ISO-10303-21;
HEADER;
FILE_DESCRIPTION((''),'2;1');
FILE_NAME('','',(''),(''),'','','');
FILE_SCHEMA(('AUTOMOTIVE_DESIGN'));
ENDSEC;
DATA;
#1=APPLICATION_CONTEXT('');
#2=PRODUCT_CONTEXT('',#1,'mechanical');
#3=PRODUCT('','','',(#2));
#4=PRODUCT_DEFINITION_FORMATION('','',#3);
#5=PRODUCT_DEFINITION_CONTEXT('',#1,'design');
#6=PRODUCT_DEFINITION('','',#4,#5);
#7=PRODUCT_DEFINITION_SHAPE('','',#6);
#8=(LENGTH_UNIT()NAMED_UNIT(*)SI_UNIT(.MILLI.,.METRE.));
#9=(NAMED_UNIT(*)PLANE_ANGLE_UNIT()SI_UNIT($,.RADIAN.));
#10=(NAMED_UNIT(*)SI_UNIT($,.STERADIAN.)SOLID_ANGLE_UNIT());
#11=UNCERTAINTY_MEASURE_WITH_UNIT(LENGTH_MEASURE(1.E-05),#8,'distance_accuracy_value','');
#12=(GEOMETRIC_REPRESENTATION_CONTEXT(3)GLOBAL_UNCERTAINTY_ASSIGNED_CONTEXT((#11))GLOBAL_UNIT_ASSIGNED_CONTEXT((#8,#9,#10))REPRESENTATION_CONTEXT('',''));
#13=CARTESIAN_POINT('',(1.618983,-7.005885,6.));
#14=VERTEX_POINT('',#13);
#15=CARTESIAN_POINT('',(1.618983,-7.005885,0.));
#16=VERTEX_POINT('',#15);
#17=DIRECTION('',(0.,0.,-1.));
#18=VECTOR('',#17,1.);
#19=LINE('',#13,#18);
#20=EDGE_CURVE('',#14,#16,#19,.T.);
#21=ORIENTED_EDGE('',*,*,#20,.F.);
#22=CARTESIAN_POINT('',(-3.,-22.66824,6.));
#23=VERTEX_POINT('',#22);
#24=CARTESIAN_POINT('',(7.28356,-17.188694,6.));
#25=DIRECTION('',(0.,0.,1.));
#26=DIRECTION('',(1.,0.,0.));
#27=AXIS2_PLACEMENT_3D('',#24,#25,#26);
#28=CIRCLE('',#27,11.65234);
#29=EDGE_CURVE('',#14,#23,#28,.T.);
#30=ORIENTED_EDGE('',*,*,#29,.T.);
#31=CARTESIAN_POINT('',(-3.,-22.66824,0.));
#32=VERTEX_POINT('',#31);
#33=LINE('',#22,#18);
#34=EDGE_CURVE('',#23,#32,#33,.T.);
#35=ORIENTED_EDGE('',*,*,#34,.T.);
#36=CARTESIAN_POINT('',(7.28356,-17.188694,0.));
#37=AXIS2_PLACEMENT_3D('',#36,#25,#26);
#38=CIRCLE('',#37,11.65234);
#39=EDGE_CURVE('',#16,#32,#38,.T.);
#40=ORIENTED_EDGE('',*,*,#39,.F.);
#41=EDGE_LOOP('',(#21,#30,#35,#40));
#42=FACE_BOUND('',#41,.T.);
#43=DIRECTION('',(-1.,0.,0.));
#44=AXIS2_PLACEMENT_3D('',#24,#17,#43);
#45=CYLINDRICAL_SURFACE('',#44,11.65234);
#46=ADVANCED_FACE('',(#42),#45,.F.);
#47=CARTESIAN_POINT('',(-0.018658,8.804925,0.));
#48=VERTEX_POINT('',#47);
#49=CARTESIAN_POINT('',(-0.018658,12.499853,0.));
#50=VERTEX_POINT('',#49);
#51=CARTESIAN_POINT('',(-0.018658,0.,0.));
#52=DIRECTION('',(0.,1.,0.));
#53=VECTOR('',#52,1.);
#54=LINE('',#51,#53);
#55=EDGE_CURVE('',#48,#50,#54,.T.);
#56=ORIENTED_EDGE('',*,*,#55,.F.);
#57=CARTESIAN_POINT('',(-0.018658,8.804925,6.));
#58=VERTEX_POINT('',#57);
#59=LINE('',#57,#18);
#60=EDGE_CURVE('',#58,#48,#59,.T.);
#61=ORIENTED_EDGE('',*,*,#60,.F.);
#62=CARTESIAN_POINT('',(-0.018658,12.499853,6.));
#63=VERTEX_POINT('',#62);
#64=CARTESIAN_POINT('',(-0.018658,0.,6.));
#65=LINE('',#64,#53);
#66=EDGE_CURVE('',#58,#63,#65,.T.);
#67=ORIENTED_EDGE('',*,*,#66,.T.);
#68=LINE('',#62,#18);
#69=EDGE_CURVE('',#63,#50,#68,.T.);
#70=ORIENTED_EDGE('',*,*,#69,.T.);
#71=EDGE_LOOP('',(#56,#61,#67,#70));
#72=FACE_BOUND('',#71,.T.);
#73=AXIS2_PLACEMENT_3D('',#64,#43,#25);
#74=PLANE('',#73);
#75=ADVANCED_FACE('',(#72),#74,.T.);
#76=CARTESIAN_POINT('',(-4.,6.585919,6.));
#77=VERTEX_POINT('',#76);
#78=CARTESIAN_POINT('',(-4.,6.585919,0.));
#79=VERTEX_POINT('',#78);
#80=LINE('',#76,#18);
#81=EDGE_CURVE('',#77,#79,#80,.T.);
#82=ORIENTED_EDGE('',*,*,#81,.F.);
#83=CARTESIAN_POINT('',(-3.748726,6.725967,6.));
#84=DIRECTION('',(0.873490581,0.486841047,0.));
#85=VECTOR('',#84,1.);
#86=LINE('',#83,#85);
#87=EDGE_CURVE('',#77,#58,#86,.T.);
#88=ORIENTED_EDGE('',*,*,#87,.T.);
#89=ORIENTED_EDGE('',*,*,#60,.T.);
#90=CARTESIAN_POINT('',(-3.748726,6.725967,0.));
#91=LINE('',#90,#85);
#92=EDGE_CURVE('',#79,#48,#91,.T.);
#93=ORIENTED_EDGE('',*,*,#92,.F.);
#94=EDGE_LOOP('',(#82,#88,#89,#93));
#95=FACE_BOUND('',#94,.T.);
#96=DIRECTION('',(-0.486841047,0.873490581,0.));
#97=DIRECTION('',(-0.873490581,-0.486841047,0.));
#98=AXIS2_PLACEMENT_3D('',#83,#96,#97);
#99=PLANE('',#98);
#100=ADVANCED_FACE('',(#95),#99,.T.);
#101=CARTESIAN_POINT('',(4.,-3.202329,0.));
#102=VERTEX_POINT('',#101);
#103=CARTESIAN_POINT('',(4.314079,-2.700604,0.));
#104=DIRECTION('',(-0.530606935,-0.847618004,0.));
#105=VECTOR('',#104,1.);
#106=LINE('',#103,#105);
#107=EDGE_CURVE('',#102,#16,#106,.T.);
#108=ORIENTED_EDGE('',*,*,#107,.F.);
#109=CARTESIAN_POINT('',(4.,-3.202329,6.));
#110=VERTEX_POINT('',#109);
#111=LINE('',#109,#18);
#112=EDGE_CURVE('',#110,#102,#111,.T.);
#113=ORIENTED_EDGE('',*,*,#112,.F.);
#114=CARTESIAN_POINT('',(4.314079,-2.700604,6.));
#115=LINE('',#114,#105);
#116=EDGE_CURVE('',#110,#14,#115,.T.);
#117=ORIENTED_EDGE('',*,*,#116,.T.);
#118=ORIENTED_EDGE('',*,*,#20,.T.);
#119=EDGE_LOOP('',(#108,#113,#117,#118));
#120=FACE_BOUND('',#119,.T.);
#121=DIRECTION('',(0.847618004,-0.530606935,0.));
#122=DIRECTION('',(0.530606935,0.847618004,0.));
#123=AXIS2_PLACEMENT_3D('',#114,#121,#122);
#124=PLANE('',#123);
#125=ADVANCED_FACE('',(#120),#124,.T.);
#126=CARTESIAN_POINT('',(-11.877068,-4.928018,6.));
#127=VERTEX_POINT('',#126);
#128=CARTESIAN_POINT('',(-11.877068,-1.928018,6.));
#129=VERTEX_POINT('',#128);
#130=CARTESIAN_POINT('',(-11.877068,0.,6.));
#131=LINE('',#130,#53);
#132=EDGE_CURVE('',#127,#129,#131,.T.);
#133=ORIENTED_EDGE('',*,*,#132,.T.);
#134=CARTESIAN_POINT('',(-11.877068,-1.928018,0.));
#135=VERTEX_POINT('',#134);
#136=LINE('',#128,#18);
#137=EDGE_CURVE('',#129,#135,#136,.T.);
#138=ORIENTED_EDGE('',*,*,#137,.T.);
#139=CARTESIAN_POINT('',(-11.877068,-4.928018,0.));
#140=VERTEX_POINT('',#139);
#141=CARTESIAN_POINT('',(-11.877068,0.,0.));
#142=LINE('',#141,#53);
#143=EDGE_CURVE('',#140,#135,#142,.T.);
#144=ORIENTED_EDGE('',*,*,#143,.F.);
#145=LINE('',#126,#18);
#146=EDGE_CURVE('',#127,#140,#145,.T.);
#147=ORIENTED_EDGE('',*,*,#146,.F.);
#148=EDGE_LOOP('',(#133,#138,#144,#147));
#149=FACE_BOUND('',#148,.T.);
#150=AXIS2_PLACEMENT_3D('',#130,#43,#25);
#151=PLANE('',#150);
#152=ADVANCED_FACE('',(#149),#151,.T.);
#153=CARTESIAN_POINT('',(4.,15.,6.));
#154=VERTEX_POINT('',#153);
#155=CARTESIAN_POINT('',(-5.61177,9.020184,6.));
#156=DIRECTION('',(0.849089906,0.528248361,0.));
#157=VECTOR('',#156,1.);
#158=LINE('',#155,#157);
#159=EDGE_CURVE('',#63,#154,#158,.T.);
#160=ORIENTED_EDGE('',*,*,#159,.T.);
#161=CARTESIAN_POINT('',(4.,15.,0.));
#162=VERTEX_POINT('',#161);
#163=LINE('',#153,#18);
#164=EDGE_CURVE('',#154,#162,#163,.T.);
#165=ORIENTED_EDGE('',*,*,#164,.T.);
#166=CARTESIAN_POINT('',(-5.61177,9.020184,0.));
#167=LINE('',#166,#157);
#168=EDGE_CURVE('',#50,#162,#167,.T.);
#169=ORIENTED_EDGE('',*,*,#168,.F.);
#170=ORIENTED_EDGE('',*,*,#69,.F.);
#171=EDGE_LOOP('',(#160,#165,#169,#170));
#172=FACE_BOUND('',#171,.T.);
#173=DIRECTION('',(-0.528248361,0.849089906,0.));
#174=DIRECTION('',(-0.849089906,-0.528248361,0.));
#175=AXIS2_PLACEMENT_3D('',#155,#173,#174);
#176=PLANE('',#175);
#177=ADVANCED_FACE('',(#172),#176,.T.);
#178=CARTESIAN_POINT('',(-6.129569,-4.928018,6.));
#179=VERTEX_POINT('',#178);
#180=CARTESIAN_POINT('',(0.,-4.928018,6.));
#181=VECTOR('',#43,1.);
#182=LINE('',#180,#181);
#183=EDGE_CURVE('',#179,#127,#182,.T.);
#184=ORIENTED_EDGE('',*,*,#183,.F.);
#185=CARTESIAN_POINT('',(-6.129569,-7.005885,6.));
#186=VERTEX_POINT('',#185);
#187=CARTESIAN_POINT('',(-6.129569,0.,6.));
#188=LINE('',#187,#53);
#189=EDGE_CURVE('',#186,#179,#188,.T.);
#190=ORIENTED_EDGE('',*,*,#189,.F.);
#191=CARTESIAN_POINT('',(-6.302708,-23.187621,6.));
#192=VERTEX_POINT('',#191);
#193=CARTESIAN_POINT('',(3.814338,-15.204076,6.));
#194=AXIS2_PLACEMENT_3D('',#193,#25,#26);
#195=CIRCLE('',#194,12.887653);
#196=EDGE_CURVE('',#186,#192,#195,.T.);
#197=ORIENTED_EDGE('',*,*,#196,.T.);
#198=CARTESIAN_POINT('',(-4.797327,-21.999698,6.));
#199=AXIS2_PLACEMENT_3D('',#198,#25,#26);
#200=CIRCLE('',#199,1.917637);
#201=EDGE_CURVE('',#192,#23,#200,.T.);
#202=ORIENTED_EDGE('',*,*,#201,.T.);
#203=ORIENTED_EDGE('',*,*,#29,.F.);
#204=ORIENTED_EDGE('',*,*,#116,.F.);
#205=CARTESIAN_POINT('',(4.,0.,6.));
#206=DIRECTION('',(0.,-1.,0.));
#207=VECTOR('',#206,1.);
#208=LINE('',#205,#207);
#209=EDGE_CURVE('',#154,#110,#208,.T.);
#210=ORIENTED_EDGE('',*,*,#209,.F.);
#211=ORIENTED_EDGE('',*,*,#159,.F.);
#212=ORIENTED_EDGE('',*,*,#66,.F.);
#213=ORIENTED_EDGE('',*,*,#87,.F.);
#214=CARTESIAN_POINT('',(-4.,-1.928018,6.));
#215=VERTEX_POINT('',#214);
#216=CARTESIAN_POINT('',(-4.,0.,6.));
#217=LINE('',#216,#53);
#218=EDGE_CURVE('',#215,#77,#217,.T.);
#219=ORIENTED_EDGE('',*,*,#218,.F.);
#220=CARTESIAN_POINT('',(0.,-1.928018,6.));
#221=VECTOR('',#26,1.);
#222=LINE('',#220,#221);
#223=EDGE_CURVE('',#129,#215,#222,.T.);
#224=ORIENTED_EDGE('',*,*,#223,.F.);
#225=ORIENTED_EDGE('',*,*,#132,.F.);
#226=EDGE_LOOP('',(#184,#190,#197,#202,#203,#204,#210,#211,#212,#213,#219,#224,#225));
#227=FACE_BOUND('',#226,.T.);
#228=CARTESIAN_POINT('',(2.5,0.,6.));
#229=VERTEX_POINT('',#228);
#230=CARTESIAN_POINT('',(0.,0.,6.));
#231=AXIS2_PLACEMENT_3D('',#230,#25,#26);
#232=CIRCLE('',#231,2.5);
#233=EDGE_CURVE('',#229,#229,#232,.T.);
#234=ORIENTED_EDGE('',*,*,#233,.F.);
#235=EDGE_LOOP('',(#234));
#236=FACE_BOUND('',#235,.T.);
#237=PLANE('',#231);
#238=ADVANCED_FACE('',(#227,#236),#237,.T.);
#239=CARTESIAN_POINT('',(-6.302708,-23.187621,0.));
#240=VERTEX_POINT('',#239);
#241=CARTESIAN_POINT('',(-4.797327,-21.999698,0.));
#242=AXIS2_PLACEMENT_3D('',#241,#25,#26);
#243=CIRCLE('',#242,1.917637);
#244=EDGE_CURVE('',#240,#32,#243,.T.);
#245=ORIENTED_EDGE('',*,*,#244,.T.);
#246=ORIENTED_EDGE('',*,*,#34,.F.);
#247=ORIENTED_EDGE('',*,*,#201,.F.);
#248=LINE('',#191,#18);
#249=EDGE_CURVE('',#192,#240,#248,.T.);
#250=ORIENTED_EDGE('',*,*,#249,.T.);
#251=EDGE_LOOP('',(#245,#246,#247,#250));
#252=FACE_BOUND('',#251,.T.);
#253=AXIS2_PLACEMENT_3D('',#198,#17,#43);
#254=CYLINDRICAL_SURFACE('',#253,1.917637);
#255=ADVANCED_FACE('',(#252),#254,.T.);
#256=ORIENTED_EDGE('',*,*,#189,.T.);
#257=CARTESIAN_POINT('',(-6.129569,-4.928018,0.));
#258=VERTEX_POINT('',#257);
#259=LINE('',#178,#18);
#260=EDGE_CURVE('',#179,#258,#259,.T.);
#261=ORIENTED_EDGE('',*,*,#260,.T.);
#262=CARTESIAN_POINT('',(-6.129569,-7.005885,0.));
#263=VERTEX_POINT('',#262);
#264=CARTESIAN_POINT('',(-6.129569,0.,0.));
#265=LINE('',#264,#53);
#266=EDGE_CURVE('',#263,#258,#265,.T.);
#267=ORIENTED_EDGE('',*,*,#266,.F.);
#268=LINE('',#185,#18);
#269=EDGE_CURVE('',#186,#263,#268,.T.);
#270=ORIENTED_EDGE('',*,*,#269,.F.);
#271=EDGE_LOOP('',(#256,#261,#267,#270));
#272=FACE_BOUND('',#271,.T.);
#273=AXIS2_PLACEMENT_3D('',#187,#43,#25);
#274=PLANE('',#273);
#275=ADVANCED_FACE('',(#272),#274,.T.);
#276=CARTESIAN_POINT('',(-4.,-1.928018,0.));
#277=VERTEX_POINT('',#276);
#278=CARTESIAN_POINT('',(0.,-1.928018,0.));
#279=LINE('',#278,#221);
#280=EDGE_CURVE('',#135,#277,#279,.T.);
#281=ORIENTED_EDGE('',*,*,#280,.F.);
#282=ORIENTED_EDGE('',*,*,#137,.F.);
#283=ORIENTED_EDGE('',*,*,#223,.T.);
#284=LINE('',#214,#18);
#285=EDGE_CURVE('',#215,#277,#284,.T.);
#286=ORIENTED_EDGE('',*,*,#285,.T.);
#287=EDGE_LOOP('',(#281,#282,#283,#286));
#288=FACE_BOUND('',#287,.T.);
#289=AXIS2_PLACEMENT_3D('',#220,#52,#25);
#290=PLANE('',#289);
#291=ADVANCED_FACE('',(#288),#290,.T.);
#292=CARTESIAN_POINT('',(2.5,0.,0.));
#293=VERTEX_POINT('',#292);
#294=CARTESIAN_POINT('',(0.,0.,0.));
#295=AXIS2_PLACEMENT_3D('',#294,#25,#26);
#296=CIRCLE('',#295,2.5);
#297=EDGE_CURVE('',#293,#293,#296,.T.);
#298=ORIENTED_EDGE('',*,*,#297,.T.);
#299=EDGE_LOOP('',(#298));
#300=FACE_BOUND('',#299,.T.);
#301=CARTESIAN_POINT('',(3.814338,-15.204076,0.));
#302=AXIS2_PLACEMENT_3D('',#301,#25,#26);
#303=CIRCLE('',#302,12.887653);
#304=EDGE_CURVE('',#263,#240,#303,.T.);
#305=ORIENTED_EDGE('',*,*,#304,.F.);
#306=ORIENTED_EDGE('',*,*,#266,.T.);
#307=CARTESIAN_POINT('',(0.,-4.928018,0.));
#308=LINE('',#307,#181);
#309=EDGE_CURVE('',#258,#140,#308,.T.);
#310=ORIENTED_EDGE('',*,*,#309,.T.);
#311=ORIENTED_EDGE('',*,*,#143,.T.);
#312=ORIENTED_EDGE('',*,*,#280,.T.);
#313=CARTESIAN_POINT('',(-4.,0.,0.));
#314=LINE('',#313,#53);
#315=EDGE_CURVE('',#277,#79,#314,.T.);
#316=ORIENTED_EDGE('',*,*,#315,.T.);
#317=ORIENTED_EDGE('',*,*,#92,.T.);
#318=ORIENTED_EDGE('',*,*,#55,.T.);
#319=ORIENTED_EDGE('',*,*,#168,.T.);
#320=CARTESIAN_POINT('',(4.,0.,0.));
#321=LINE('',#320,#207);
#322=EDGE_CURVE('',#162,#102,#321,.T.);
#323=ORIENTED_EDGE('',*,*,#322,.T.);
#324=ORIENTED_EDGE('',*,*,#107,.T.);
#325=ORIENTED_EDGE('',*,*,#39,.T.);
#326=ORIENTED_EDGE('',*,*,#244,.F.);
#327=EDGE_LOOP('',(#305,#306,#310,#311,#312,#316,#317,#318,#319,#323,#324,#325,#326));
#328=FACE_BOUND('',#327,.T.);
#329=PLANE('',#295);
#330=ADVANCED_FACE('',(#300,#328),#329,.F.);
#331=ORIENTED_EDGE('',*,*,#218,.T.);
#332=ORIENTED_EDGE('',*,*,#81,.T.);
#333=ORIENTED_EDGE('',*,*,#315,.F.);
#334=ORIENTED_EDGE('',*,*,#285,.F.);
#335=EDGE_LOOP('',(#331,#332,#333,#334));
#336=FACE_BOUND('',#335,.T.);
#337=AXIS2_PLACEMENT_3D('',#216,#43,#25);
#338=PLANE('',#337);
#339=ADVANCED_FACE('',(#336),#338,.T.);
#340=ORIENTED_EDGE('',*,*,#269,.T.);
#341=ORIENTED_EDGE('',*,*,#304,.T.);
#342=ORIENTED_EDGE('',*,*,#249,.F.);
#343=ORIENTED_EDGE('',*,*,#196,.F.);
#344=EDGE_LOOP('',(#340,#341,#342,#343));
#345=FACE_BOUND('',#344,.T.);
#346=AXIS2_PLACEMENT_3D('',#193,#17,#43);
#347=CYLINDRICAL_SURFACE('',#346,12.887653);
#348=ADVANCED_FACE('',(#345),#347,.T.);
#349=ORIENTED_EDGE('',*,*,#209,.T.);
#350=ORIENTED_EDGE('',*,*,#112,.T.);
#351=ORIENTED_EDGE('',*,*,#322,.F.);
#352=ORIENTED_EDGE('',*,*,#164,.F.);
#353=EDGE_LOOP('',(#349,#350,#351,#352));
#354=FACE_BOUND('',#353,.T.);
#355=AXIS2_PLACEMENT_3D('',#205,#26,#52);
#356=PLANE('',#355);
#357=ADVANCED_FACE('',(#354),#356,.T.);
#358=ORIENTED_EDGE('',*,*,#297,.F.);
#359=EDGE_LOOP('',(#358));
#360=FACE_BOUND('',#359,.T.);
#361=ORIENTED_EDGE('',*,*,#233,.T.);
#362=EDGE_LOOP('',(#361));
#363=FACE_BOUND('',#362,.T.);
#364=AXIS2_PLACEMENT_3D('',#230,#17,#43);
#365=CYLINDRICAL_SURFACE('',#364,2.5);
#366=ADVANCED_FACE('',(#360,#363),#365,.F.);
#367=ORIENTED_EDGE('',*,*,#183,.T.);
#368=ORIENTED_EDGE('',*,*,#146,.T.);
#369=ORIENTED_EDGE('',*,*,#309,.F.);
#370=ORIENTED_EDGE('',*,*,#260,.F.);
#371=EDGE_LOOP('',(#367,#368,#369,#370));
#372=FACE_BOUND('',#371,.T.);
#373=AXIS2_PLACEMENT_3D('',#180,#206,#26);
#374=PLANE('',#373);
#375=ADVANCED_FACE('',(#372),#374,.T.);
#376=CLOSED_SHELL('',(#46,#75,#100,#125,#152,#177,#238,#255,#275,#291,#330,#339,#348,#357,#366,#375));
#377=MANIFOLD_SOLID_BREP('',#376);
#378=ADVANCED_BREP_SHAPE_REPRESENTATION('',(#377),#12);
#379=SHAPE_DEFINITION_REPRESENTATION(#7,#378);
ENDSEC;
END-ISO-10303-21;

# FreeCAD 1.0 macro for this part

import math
import FreeCAD as App
import Part
import Sketcher

V = App.Vector

doc = App.newDocument("Part")
body = doc.addObject("PartDesign::Body", "Body")

sketch1 = body.newObject("Sketcher::SketchObject", "Sketch")
sketch1.AttachmentSupport = (doc.getObject("XY_Plane"), [""])
sketch1.MapMode = "FlatFace"
sketch1.addGeometry(Part.LineSegment(V(4, -3.202329, 0), V(4, 15, 0)), False)
sketch1.addGeometry(Part.LineSegment(V(4, 15, 0), V(-0.018658, 12.499853, 0)), False)
sketch1.addGeometry(Part.LineSegment(V(-0.018658, 12.499853, 0), V(-0.018658, 8.804925, 0)), False)
sketch1.addGeometry(Part.LineSegment(V(-0.018658, 8.804925, 0), V(-4, 6.585919, 0)), False)
sketch1.addGeometry(Part.LineSegment(V(-4, 6.585919, 0), V(-4, -1.928018, 0)), False)
sketch1.addGeometry(Part.LineSegment(V(-4, -1.928018, 0), V(-11.877068, -1.928018, 0)), False)
sketch1.addGeometry(Part.LineSegment(V(-11.877068, -1.928018, 0), V(-11.877068, -4.928018, 0)), False)
sketch1.addGeometry(Part.LineSegment(V(-11.877068, -4.928018, 0), V(-6.129569, -4.928018, 0)), False)
sketch1.addGeometry(Part.LineSegment(V(-6.129569, -4.928018, 0), V(-6.129569, -7.005885, 0)), False)
sketch1.addGeometry(Part.ArcOfCircle(Part.Circle(V(3.814338, -15.204076, 0), V(0, 0, 1), 12.887653), math.radians(140.496341), math.radians(218.277616)), False)
sketch1.addGeometry(Part.ArcOfCircle(Part.Circle(V(-4.797327, -21.999698, 0), V(0, 0, 1), 1.917637), math.radians(-141.722384), math.radians(-20.403409)), False)
sketch1.addGeometry(Part.ArcOfCircle(Part.Circle(V(7.28356, -17.188694, 0), V(0, 0, 1), 11.65234), math.radians(119.086677), math.radians(208.050708)), False)
sketch1.addGeometry(Part.LineSegment(V(1.618983, -7.005885, 0), V(4, -3.202329, 0)), False)
sketch1.addGeometry(Part.Circle(V(0, 0, 0), V(0, 0, 1), 2.5), False)
sketch1.addConstraint(Sketcher.Constraint("Coincident", 0, 2, 1, 1))
sketch1.addConstraint(Sketcher.Constraint("Coincident", 1, 2, 2, 1))
sketch1.addConstraint(Sketcher.Constraint("Coincident", 2, 2, 3, 1))
sketch1.addConstraint(Sketcher.Constraint("Coincident", 3, 2, 4, 1))
sketch1.addConstraint(Sketcher.Constraint("Coincident", 4, 2, 5, 1))
sketch1.addConstraint(Sketcher.Constraint("Coincident", 5, 2, 6, 1))
sketch1.addConstraint(Sketcher.Constraint("Coincident", 6, 2, 7, 1))
sketch1.addConstraint(Sketcher.Constraint("Coincident", 7, 2, 8, 1))
sketch1.addConstraint(Sketcher.Constraint("Coincident", 8, 2, 9, 1))
sketch1.addConstraint(Sketcher.Constraint("Coincident", 9, 2, 10, 1))
sketch1.addConstraint(Sketcher.Constraint("Coincident", 10, 2, 11, 2))
sketch1.addConstraint(Sketcher.Constraint("Coincident", 11, 1, 12, 1))
sketch1.addConstraint(Sketcher.Constraint("Coincident", 12, 2, 0, 1))
sketch1.addConstraint(Sketcher.Constraint("Vertical", 0))
sketch1.addConstraint(Sketcher.Constraint("Vertical", 2))
sketch1.addConstraint(Sketcher.Constraint("Vertical", 4))
sketch1.addConstraint(Sketcher.Constraint("Horizontal", 5))
sketch1.addConstraint(Sketcher.Constraint("Vertical", 6))
sketch1.addConstraint(Sketcher.Constraint("Horizontal", 7))
sketch1.addConstraint(Sketcher.Constraint("Vertical", 8))
sketch1.addConstraint(Sketcher.Constraint("Coincident", 13, 3, -1, 1))
sketch1.addConstraint(Sketcher.Constraint("Diameter", 13, 5.0))
sketch1.addConstraint(Sketcher.Constraint("DistanceY", 6, 2, 6, 1, 3.0))
sketch1.addConstraint(Sketcher.Constraint("DistanceX", -1, 1, 0, 2, 4.0))
sketch1.addConstraint(Sketcher.Constraint("DistanceY", -1, 1, 0, 2, 15.0))
sketch1.addConstraint(Sketcher.Constraint("DistanceX", 3, 2, -1, 1, 4.0))
sketch1.addConstraint(Sketcher.Constraint("DistanceX", 10, 2, -1, 1, 3.0))
sketch1.addConstraint(Sketcher.Constraint("Radius", 11, 11.65234))
sketch1.addConstraint(Sketcher.Constraint("DistanceX", 7, 1, 7, 2, 5.747499))
sketch1.addConstraint(Sketcher.Constraint("Radius", 9, 12.887653))
sketch1.addConstraint(Sketcher.Constraint("Radius", 10, 1.917637))
sketch1.addConstraint(Sketcher.Constraint("DistanceY", 9, 3, 2, 2, 24.009001))
sketch1.addConstraint(Sketcher.Constraint("Distance", 1, 4.7329))
sketch1.addConstraint(Sketcher.Constraint("DistanceX", 5, 2, 5, 1, 7.877068))
sketch1.addConstraint(Sketcher.Constraint("DistanceY", 0, 1, 0, 2, 18.202329))
sketch1.addConstraint(Sketcher.Constraint("Distance", 3, 4.557968))
sketch1.addConstraint(Sketcher.Constraint("DistanceY", 2, 2, 2, 1, 3.694928))
sketch1.addConstraint(Sketcher.Constraint("DistanceY", 4, 2, 4, 1, 8.513937))
sketch1.addConstraint(Sketcher.Constraint("DistanceY", 8, 2, 8, 1, 2.077867))
sketch1.addConstraint(Sketcher.Constraint("DistanceX", -1, 1, 11, 3, 7.28356))
sketch1.addConstraint(Sketcher.Constraint("DistanceY", -1, 1, 3, 2, 6.585919))
sketch1.addConstraint(Sketcher.Constraint("DistanceY", 9, 2, -1, 1, 23.187621))
sketch1.addConstraint(Sketcher.Constraint("DistanceY", 10, 2, -1, 1, 22.66824))
sketch1.addConstraint(Sketcher.Constraint("DistanceX", 8, 2, 11, 1, 7.748552))
pad1 = body.newObject("PartDesign::Pad", "Pad")
pad1.Profile = sketch1
pad1.Length = 6

doc.recompute()
